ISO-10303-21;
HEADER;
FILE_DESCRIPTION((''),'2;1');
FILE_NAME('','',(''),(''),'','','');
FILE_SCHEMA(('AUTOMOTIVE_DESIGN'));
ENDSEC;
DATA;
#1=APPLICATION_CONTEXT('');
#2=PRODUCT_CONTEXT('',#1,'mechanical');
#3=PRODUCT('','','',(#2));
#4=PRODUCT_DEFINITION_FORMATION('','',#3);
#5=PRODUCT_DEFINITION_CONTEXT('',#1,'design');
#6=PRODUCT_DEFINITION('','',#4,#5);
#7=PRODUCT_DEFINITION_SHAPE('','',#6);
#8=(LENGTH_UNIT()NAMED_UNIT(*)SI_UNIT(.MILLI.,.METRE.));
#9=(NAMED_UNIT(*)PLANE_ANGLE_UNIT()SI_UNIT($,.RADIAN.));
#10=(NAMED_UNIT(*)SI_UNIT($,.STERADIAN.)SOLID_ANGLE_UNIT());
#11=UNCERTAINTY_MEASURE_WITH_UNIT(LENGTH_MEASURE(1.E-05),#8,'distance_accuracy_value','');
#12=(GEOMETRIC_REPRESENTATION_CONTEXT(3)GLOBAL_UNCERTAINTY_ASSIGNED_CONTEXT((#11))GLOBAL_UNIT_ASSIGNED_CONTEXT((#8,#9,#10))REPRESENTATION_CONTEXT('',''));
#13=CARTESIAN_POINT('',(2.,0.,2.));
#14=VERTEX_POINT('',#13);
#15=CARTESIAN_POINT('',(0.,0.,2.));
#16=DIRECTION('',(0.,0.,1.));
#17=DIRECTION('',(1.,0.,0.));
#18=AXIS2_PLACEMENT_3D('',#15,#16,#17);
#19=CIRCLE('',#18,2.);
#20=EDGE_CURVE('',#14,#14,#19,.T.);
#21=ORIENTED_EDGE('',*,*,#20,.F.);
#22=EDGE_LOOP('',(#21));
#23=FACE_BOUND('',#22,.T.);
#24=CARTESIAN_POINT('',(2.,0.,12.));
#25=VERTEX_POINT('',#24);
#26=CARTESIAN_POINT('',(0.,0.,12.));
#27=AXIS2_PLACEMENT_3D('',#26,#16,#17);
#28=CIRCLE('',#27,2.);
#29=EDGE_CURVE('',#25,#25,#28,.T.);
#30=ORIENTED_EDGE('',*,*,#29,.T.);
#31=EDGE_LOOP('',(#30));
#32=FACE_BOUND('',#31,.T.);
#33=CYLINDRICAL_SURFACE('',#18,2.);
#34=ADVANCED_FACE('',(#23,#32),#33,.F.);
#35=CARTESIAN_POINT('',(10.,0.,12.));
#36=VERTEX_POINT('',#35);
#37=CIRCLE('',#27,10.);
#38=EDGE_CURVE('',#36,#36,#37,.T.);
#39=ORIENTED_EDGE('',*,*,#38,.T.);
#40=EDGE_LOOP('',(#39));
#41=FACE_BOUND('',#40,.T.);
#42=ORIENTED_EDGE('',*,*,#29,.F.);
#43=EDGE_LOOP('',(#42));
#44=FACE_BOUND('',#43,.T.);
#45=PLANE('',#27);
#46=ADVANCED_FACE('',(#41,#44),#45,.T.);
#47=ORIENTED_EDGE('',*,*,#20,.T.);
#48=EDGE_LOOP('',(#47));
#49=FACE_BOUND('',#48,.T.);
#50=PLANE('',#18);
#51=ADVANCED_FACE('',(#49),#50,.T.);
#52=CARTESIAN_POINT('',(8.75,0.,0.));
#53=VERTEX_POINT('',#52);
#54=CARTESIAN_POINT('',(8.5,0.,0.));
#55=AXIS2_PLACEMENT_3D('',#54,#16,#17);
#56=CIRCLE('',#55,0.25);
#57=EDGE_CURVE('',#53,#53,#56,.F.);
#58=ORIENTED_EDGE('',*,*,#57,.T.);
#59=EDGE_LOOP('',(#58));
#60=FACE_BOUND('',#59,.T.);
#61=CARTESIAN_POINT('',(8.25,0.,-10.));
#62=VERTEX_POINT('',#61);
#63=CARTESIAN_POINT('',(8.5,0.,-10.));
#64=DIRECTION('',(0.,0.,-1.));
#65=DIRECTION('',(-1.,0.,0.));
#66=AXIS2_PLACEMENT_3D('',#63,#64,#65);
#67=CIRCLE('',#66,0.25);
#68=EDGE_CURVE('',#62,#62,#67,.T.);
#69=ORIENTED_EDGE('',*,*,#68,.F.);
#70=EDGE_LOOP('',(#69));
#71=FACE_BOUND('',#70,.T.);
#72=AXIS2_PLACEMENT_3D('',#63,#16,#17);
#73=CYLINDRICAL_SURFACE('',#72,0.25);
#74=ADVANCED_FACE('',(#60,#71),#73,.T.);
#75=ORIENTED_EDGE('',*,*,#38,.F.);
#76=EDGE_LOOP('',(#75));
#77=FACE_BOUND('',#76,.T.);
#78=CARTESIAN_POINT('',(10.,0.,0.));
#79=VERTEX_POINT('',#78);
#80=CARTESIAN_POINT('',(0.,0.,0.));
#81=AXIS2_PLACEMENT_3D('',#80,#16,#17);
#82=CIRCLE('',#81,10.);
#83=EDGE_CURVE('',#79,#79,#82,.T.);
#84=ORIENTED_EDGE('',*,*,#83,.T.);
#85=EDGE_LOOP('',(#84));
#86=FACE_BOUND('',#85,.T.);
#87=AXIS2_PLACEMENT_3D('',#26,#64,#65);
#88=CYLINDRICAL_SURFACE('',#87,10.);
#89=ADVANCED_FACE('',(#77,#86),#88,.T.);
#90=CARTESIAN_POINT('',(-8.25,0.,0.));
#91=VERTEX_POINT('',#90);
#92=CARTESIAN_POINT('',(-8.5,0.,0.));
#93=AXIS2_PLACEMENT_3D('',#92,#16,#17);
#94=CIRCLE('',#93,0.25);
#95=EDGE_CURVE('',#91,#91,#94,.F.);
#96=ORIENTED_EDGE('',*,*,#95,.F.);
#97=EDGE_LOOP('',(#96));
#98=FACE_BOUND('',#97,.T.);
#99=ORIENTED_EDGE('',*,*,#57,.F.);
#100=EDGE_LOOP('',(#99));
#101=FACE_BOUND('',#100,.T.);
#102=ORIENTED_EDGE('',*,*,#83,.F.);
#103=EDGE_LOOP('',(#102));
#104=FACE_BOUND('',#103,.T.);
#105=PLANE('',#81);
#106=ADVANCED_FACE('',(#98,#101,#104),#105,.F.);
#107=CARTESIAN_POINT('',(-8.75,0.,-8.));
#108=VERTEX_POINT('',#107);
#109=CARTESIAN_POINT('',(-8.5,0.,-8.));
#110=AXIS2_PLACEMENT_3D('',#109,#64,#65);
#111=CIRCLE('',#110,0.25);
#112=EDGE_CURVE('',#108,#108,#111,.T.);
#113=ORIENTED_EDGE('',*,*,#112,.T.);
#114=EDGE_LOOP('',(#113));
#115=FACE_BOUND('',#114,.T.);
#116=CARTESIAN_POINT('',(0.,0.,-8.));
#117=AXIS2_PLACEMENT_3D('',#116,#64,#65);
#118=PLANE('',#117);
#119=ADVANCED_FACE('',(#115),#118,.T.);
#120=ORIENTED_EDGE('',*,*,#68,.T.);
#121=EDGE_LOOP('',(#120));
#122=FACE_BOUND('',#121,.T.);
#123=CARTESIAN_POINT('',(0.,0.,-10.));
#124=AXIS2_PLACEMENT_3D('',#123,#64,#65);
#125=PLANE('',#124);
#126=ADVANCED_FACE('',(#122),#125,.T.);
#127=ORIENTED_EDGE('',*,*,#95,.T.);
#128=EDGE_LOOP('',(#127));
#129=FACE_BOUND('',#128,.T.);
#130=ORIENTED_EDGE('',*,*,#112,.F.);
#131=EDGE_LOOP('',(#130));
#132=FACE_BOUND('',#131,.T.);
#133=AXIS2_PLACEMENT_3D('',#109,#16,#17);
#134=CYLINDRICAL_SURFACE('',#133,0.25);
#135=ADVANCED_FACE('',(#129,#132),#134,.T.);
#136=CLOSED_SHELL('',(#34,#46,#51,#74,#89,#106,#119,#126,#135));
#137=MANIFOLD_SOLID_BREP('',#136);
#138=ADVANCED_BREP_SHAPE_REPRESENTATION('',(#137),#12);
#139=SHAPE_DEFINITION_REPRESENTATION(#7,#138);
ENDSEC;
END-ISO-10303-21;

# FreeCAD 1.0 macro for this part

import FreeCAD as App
import Part
import Sketcher

V = App.Vector
Q = App.Units.Quantity

doc = App.newDocument("Part")
body = doc.addObject("PartDesign::Body", "Body")

# Sketch on XY plane
sketch1 = body.newObject("Sketcher::SketchObject", "Sketch")
sketch1.AttachmentSupport = (doc.getObject("XY_Plane"), [""])
sketch1.MapMode = "FlatFace"
sketch1.addGeometry(Part.Circle(V(0, 0, 0), V(0, 0, 1), 10), False)
sketch1.addConstraint([
    Sketcher.Constraint("Coincident", 0, 3, -1, 1),
    Sketcher.Constraint("Diameter", 0, Q("20 mm")),
])
pad1 = body.newObject("PartDesign::Pad", "Pad")
pad1.Profile = sketch1
pad1.Length = 12

# Sketch on XY plane
sketch2 = body.newObject("Sketcher::SketchObject", "Sketch001")
sketch2.AttachmentSupport = (doc.getObject("XY_Plane"), [""])
sketch2.MapMode = "FlatFace"
sketch2.AttachmentOffset = App.Placement(V(0, 0, 12), App.Rotation())
sketch2.addGeometry(Part.Circle(V(0, 0, 0), V(0, 0, 1), 2), False)
sketch2.addConstraint([
    Sketcher.Constraint("Coincident", 0, 3, -1, 1),
    Sketcher.Constraint("Diameter", 0, Q("4 mm")),
])
pocket1 = body.newObject("PartDesign::Pocket", "Pocket")
pocket1.Profile = sketch2
pocket1.Length = 10

# Sketch on XY plane
sketch3 = body.newObject("Sketcher::SketchObject", "Sketch002")
sketch3.AttachmentSupport = (doc.getObject("XY_Plane"), [""])
sketch3.MapMode = "FlatFace"
sketch3.addGeometry(Part.Circle(V(8.5, 0, 0), V(0, 0, 1), 0.25), False)
sketch3.addConstraint([
    Sketcher.Constraint("PointOnObject", 0, 3, -1),
    Sketcher.Constraint("Diameter", 0, Q("0.5 mm")),
    Sketcher.Constraint("DistanceX", -1, 1, 0, 3, Q("8.5 mm")),
])
pad2 = body.newObject("PartDesign::Pad", "Pad001")
pad2.Profile = sketch3
pad2.Length = 10
pad2.Reversed = True

# Sketch on XY plane
sketch4 = body.newObject("Sketcher::SketchObject", "Sketch003")
sketch4.AttachmentSupport = (doc.getObject("XY_Plane"), [""])
sketch4.MapMode = "FlatFace"
sketch4.addGeometry(Part.Circle(V(-8.5, 0, 0), V(0, 0, 1), 0.25), False)
sketch4.addConstraint([
    Sketcher.Constraint("PointOnObject", 0, 3, -1),
    Sketcher.Constraint("Diameter", 0, Q("0.5 mm")),
    Sketcher.Constraint("DistanceX", 0, 3, -1, 1, Q("8.5 mm")),
])
pad3 = body.newObject("PartDesign::Pad", "Pad002")
pad3.Profile = sketch4
pad3.Length = 8
pad3.Reversed = True

doc.recompute()
